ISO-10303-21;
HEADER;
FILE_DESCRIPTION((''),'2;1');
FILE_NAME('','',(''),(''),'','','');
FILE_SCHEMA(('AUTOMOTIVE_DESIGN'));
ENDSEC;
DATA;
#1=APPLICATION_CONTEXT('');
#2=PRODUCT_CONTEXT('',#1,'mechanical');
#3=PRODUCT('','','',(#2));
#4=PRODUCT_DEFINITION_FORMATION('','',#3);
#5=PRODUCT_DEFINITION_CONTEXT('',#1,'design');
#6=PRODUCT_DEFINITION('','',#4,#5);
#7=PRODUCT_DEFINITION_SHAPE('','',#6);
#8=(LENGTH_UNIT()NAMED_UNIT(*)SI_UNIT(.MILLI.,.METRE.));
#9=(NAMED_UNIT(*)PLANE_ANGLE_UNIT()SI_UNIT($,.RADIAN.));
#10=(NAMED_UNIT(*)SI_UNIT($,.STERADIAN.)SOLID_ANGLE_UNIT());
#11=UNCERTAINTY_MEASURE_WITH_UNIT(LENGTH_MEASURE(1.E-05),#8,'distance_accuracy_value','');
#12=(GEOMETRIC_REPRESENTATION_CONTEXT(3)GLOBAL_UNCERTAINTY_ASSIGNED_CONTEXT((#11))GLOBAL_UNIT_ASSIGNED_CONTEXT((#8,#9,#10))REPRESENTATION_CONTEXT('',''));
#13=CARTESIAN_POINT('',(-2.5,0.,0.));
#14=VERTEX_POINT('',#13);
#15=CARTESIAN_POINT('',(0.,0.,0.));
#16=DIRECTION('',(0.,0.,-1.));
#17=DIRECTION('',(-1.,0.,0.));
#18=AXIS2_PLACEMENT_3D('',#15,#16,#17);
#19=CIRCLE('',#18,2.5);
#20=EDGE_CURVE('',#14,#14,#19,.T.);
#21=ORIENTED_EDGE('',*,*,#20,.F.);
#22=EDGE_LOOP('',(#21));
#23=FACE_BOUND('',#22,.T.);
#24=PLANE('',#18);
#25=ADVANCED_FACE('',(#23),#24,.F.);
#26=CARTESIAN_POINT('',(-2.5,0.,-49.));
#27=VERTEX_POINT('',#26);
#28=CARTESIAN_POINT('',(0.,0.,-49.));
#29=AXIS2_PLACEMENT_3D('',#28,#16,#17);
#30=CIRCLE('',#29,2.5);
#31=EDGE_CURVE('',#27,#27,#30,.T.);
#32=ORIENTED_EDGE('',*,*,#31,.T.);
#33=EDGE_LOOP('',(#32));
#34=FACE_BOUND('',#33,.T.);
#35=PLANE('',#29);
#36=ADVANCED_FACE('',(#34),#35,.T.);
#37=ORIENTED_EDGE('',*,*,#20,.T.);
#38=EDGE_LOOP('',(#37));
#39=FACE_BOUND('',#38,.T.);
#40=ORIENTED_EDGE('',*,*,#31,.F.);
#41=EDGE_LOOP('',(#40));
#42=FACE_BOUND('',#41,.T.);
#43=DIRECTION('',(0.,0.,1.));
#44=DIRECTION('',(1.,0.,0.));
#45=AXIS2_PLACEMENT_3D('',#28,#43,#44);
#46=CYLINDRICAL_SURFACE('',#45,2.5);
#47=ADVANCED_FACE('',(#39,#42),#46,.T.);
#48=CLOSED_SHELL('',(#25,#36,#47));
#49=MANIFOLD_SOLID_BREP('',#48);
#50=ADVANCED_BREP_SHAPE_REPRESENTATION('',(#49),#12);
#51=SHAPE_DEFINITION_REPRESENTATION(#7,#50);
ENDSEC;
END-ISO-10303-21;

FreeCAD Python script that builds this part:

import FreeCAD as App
import Part
import Sketcher
Q = App.Units.Quantity

doc = App.newDocument("Part")
body = doc.addObject("PartDesign::Body", "Body")

sketch1 = doc.addObject("Sketcher::SketchObject", "Sketch")
body.addObject(sketch1)
sketch1.AttachmentSupport = (doc.XY_Plane, [""])
sketch1.MapMode = "FlatFace"
sketch1.addGeometry(Part.Circle(App.Vector(0, 0, 0), App.Vector(0, 0, 1), 2.5), False)
sketch1.addConstraint([
    Sketcher.Constraint("Coincident", 0, 3, -1, 1),
    Sketcher.Constraint("Diameter", 0, Q("5 mm")),
])
pad1 = doc.addObject("PartDesign::Pad", "Pad")
body.addObject(pad1)
pad1.Profile = sketch1
pad1.Length = 49
pad1.Reversed = True

doc.recompute()
